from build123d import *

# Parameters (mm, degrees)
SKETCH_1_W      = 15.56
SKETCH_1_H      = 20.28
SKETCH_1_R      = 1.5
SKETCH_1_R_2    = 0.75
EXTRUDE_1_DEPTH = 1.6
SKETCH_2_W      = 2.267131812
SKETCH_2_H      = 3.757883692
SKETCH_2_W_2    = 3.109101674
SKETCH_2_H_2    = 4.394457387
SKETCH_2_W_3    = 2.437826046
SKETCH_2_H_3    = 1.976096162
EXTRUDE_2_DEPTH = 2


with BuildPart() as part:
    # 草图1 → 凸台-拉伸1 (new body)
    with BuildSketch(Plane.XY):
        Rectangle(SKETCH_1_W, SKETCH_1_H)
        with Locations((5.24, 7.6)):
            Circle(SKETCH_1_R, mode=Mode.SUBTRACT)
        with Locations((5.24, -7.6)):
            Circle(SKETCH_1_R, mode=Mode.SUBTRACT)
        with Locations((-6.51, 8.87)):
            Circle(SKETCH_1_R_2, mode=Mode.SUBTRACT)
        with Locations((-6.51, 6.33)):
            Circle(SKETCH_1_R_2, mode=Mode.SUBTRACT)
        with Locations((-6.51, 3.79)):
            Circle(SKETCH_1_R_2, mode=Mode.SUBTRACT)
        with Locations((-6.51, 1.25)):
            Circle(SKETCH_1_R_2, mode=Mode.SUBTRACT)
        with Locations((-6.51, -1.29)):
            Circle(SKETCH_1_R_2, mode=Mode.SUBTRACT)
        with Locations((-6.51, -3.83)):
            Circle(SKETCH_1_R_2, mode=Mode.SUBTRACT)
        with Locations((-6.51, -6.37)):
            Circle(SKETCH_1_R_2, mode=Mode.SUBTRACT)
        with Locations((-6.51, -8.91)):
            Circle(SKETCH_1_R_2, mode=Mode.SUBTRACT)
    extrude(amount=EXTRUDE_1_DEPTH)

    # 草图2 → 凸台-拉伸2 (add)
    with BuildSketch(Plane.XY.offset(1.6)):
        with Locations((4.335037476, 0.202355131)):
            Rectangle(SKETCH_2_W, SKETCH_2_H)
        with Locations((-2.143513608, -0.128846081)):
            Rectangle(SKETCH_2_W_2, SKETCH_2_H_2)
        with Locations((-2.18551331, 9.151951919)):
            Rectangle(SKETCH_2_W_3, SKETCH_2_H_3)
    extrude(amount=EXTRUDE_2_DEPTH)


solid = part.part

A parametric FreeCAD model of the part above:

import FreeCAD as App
import Part
import Sketcher

V = App.Vector
Q = App.Units.Quantity


def add_polygon(sketch, points):
    """Adds a closed chain of lines whose ends are joined by coincident constraints."""
    first, n = sketch.GeometryCount, len(points)
    for a, b in zip(points, points[1:] + points[:1]):
        sketch.addGeometry(Part.LineSegment(App.Vector(*a, 0), App.Vector(*b, 0)), False)
    for i in range(n):
        sketch.addConstraint(Sketcher.Constraint("Coincident", first + i, 2, first + (i + 1) % n, 1))

doc = App.newDocument("Part")
body = doc.addObject("PartDesign::Body", "Body")

# Sketch on XY plane
sketch1 = body.newObject("Sketcher::SketchObject", "Sketch")
sketch1.AttachmentSupport = (doc.getObject("XY_Plane"), [""])
sketch1.MapMode = "FlatFace"
add_polygon(sketch1, [(-7.78, 10.14), (-7.78, -10.14), (7.78, -10.14), (7.78, 10.14)])  # lines 0-3
sketch1.addGeometry(Part.Circle(V(-6.51, -8.91, 0), V(0, 0, 1), 0.75), False)  # 4
sketch1.addGeometry(Part.Circle(V(-6.51, -6.37, 0), V(0, 0, 1), 0.75), False)  # 5
sketch1.addGeometry(Part.Circle(V(-6.51, -3.83, 0), V(0, 0, 1), 0.75), False)  # 6
sketch1.addGeometry(Part.Circle(V(-6.51, -1.29, 0), V(0, 0, 1), 0.75), False)  # 7
sketch1.addGeometry(Part.Circle(V(5.24, -7.6, 0), V(0, 0, 1), 1.5), False)  # 8
sketch1.addGeometry(Part.Circle(V(-6.51, 1.25, 0), V(0, 0, 1), 0.75), False)  # 9
sketch1.addGeometry(Part.Circle(V(-6.51, 3.79, 0), V(0, 0, 1), 0.75), False)  # 10
sketch1.addGeometry(Part.Circle(V(-6.51, 6.33, 0), V(0, 0, 1), 0.75), False)  # 11
sketch1.addGeometry(Part.Circle(V(-6.51, 8.87, 0), V(0, 0, 1), 0.75), False)  # 12
sketch1.addGeometry(Part.Circle(V(5.24, 7.6, 0), V(0, 0, 1), 1.5), False)  # 13
sketch1.addConstraint([
    Sketcher.Constraint("Vertical", 0),
    Sketcher.Constraint("Horizontal", 1),
    Sketcher.Constraint("Vertical", 2),
    Sketcher.Constraint("Horizontal", 3),
    Sketcher.Constraint("Equal", 4, 5),
    Sketcher.Constraint("Equal", 5, 6),
    Sketcher.Constraint("Equal", 6, 7),
    Sketcher.Constraint("Equal", 7, 9),
    Sketcher.Constraint("Equal", 9, 10),
    Sketcher.Constraint("Equal", 10, 11),
    Sketcher.Constraint("Equal", 11, 12),
    Sketcher.Constraint("Equal", 8, 13),
    Sketcher.Constraint("Symmetric", 0, 2, 2, 2, -1, 1),
    Sketcher.Constraint("Symmetric", 8, 3, 13, 3, -1),
    Sketcher.Constraint("Vertical", 4, 3, 5, 3),
    Sketcher.Constraint("Vertical", 5, 3, 6, 3),
    Sketcher.Constraint("Vertical", 6, 3, 7, 3),
    Sketcher.Constraint("Vertical", 7, 3, 9, 3),
    Sketcher.Constraint("Vertical", 9, 3, 10, 3),
    Sketcher.Constraint("Vertical", 10, 3, 11, 3),
    Sketcher.Constraint("Vertical", 11, 3, 12, 3),
    Sketcher.Constraint("Diameter", 8, Q("3 mm")),
    Sketcher.Constraint("Diameter", 4, Q("1.5 mm")),
    Sketcher.Constraint("DistanceX", 1, 1, 1, 2, Q("15.56 mm")),
    Sketcher.Constraint("DistanceY", 0, 2, 0, 1, Q("20.28 mm")),
    Sketcher.Constraint("DistanceY", 8, 3, -1, 1, Q("7.6 mm")),
    Sketcher.Constraint("DistanceY", 4, 3, 10, 3, Q("12.7 mm")),
    Sketcher.Constraint("DistanceY", 5, 3, 11, 3, Q("12.7 mm")),
    Sketcher.Constraint("DistanceY", 6, 3, 12, 3, Q("12.7 mm")),
    Sketcher.Constraint("DistanceX", 4, 3, -1, 1, Q("6.51 mm")),
    Sketcher.Constraint("DistanceY", 4, 3, -1, 1, Q("8.91 mm")),
    Sketcher.Constraint("DistanceY", 5, 3, -1, 1, Q("6.37 mm")),
    Sketcher.Constraint("DistanceY", 6, 3, -1, 1, Q("3.83 mm")),
    Sketcher.Constraint("DistanceY", 7, 3, -1, 1, Q("1.29 mm")),
    Sketcher.Constraint("DistanceX", -1, 1, 8, 3, Q("5.24 mm")),
    Sketcher.Constraint("DistanceY", -1, 1, 9, 3, Q("1.25 mm")),
])
pad1 = body.newObject("PartDesign::Pad", "Pad")
pad1.Profile = sketch1
pad1.Length = 1.6

# Sketch on XY plane
sketch2 = body.newObject("Sketcher::SketchObject", "Sketch001")
sketch2.AttachmentSupport = (doc.getObject("XY_Plane"), [""])
sketch2.MapMode = "FlatFace"
sketch2.AttachmentOffset = App.Placement(V(0, 0, 1.6), App.Rotation())
add_polygon(sketch2, [(3.201472, 2.081297), (3.201472, -1.676587), (5.468603, -1.676587), (5.468603, 2.081297)])  # lines 0-3
add_polygon(sketch2, [(-3.698064, 2.068383), (-3.698064, -2.326075), (-0.588963, -2.326075), (-0.588963, 2.068383)])  # lines 4-7
add_polygon(sketch2, [(-3.404426, 10.14), (-3.404426, 8.163904), (-0.9666, 8.163904), (-0.9666, 10.14)])  # lines 8-11
sketch2.addConstraint([
    Sketcher.Constraint("Vertical", 0),
    Sketcher.Constraint("Horizontal", 1),
    Sketcher.Constraint("Vertical", 2),
    Sketcher.Constraint("Horizontal", 3),
    Sketcher.Constraint("Vertical", 4),
    Sketcher.Constraint("Horizontal", 5),
    Sketcher.Constraint("Vertical", 6),
    Sketcher.Constraint("Horizontal", 7),
    Sketcher.Constraint("Vertical", 8),
    Sketcher.Constraint("Horizontal", 9),
    Sketcher.Constraint("Vertical", 10),
    Sketcher.Constraint("Horizontal", 11),
    Sketcher.Constraint("DistanceY", -1, 1, 10, 2, Q("10.14 mm")),
    Sketcher.Constraint("DistanceX", 5, 1, 5, 2, Q("3.109102 mm")),
    Sketcher.Constraint("DistanceX", 1, 1, 1, 2, Q("2.267132 mm")),
    Sketcher.Constraint("DistanceX", 9, 2, -1, 1, Q("0.9666 mm")),
    Sketcher.Constraint("DistanceX", 9, 1, 9, 2, Q("2.437826 mm")),
    Sketcher.Constraint("DistanceY", 0, 2, 0, 1, Q("3.757884 mm")),
    Sketcher.Constraint("DistanceY", 4, 2, 4, 1, Q("4.394457 mm")),
    Sketcher.Constraint("DistanceY", 8, 2, 8, 1, Q("1.976096 mm")),
    Sketcher.Constraint("DistanceX", -1, 1, 0, 2, Q("3.201472 mm")),
    Sketcher.Constraint("DistanceY", 4, 2, 0, 2, Q("0.649488 mm")),
    Sketcher.Constraint("DistanceX", 7, 2, 8, 2, Q("0.293638 mm")),
    Sketcher.Constraint("DistanceY", 7, 2, 8, 2, Q("6.095521 mm")),
])
pad2 = body.newObject("PartDesign::Pad", "Pad001")
pad2.Profile = sketch2
pad2.Length = 2

doc.recompute()
